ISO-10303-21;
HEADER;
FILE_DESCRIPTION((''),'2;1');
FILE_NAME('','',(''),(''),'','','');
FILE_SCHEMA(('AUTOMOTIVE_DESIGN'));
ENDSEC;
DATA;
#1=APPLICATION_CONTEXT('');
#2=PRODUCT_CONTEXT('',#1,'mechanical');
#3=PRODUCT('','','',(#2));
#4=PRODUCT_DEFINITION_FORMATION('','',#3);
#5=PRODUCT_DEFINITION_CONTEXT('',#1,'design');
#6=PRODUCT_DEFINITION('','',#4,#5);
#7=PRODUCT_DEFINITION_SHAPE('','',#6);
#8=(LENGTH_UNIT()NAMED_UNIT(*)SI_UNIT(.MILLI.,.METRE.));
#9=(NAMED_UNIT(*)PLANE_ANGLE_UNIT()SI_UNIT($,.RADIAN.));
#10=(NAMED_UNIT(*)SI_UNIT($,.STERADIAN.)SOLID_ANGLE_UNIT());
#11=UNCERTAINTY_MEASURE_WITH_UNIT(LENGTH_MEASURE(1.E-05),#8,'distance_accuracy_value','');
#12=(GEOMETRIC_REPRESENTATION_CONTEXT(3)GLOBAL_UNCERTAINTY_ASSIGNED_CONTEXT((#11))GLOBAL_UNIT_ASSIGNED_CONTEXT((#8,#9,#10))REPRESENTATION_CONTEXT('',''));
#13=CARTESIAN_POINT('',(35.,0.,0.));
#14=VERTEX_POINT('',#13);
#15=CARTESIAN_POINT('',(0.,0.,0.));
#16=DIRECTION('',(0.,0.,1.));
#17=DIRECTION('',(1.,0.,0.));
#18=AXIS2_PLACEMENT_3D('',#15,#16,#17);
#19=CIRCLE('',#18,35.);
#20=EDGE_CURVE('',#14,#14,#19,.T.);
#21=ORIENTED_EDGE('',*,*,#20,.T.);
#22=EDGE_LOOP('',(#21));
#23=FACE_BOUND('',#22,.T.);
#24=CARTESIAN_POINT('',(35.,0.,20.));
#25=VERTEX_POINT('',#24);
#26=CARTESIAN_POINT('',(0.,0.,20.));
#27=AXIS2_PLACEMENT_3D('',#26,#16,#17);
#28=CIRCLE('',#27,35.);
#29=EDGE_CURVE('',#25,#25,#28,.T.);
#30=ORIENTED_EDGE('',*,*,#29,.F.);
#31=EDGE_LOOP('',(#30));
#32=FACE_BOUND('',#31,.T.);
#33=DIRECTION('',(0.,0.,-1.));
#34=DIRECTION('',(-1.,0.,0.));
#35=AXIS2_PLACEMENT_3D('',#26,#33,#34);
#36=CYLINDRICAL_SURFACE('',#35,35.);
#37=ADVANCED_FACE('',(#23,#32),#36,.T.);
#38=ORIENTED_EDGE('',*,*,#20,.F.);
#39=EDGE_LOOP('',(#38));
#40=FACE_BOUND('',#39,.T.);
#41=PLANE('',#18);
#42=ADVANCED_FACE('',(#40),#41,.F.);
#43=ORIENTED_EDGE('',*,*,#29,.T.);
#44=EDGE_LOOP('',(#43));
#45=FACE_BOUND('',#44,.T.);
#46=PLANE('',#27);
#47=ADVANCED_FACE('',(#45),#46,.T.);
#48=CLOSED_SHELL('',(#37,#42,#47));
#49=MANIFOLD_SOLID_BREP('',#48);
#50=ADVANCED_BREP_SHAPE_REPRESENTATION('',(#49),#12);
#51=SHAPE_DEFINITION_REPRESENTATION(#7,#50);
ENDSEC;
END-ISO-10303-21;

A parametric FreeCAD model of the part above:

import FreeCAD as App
import Part
import Sketcher

V = App.Vector
Q = App.Units.Quantity

doc = App.newDocument("Part")
body = doc.addObject("PartDesign::Body", "Body")

sketch1 = body.newObject("Sketcher::SketchObject", "Sketch")
sketch1.AttachmentSupport = (doc.getObject("XY_Plane"), [""])
sketch1.MapMode = "FlatFace"
sketch1.addGeometry(Part.Circle(V(0, 0, 0), V(0, 0, 1), 35), False)
sketch1.addConstraint([
    Sketcher.Constraint("Coincident", 0, 3, -1, 1),
    Sketcher.Constraint("Diameter", 0, Q("70 mm")),
])
pad1 = body.newObject("PartDesign::Pad", "Pad")
pad1.Profile = sketch1
pad1.Length = 20

doc.recompute()
